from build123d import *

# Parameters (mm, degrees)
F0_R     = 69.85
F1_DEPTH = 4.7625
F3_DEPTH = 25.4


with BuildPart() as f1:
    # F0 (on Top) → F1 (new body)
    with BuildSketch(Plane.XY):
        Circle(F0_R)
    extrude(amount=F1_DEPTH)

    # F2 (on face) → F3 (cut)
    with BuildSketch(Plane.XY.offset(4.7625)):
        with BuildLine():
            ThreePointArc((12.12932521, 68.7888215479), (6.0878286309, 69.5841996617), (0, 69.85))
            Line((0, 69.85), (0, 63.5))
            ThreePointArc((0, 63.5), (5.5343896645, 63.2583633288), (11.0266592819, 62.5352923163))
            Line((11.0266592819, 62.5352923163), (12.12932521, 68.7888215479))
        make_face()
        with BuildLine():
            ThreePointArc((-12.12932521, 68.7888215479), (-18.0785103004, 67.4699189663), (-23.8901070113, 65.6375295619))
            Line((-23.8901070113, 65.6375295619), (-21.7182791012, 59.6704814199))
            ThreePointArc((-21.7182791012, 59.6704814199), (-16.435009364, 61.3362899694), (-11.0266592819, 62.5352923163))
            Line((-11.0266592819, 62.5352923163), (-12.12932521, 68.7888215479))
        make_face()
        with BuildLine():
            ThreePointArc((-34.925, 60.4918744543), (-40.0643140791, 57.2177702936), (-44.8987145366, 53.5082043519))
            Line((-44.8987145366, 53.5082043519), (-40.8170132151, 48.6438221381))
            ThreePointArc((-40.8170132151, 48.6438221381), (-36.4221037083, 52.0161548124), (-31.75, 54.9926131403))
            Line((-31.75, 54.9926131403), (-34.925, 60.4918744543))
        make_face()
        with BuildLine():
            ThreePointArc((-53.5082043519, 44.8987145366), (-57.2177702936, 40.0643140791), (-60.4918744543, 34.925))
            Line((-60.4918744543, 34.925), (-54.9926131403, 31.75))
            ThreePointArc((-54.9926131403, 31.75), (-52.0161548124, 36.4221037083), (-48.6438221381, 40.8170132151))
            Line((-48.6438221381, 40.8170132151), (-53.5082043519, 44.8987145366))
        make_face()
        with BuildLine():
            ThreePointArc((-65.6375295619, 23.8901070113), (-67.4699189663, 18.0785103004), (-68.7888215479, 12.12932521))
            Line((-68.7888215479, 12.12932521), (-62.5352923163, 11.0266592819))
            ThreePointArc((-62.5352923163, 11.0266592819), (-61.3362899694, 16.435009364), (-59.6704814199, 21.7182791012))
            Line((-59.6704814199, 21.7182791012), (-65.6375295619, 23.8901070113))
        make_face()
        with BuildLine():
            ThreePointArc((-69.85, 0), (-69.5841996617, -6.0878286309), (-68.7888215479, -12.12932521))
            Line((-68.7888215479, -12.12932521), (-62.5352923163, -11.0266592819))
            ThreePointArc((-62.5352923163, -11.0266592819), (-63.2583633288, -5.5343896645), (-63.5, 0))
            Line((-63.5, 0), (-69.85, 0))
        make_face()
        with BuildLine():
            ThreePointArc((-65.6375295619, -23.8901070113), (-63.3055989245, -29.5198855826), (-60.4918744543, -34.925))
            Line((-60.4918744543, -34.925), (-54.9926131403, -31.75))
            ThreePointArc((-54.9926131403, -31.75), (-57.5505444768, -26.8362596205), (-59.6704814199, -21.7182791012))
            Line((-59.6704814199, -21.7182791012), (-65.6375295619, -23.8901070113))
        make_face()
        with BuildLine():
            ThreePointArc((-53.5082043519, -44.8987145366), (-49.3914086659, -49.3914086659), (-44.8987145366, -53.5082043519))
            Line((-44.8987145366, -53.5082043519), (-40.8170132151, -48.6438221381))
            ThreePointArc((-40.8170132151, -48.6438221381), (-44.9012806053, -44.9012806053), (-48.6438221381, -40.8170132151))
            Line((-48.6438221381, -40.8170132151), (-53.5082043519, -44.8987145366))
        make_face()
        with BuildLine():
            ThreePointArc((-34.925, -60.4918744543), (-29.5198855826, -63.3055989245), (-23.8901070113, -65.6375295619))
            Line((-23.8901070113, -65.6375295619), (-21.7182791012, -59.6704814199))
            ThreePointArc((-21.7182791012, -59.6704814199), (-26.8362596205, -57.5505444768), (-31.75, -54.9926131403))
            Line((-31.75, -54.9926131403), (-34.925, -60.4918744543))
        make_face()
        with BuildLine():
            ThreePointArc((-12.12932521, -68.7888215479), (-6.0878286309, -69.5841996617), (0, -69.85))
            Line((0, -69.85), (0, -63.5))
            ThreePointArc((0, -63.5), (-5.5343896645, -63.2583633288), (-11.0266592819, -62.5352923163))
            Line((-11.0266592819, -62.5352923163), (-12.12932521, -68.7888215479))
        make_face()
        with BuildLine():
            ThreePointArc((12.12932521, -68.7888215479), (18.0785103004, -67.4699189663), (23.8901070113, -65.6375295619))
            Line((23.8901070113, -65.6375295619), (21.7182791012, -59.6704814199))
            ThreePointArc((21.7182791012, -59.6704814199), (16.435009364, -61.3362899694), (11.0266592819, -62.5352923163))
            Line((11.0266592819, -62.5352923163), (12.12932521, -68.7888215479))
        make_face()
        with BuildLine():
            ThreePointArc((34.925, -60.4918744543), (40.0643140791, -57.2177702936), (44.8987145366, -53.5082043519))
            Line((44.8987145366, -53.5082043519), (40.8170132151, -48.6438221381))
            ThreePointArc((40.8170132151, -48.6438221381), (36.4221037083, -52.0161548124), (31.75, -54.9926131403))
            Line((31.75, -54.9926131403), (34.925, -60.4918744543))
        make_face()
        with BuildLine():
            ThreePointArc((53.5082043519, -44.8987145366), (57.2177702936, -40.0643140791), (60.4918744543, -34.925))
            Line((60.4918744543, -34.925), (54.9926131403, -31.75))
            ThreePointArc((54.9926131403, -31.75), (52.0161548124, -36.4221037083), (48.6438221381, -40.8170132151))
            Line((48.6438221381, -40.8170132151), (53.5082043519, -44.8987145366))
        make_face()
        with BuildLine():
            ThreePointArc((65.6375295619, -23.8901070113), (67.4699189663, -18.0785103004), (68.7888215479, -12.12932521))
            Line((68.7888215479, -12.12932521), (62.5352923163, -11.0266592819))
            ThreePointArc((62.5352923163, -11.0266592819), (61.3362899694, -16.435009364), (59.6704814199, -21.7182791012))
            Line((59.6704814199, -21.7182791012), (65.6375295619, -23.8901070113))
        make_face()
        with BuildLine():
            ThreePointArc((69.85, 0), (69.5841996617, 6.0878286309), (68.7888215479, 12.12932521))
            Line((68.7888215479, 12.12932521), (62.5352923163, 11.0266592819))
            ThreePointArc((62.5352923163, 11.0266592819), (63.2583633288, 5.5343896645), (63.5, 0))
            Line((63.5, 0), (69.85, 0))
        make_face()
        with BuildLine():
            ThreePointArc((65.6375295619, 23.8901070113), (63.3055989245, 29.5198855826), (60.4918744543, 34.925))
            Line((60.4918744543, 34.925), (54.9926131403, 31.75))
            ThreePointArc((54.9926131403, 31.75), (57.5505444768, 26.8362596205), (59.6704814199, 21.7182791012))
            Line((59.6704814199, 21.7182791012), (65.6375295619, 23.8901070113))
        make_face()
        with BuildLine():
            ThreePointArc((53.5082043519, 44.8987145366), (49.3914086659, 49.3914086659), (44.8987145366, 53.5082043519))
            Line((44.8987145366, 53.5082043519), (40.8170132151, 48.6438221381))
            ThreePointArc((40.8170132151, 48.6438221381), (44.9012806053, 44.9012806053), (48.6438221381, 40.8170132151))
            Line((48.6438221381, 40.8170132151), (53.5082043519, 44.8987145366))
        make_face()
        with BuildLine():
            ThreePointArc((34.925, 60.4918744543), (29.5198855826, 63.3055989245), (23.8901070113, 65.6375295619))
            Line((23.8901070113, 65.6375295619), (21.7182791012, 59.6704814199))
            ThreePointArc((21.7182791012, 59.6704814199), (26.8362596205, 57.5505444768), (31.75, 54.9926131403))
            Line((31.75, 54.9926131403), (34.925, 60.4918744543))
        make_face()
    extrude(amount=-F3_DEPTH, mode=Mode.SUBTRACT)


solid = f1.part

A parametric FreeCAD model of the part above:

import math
import FreeCAD as App
import Part
import Sketcher
Q = App.Units.Quantity

doc = App.newDocument("Part")
body = doc.addObject("PartDesign::Body", "Body")

sketch1 = body.newObject("Sketcher::SketchObject", "Sketch")
sketch1.AttachmentSupport = (doc.getObject("XY_Plane"), [""])
sketch1.MapMode = "FlatFace"
sketch1.addGeometry(Part.Circle(App.Vector(0, 0, 0), App.Vector(0, 0, 1), 70), False)
sketch1.addConstraint([
    Sketcher.Constraint("Coincident", 0, 3, -1, 1),
    Sketcher.Constraint("Diameter", 0, Q("5.5 in")),
])
pad1 = body.newObject("PartDesign::Pad", "Pad")
pad1.Profile = sketch1
pad1.Length = Q("0.1875 in")

sketch2 = body.newObject("Sketcher::SketchObject", "Sketch001")
sketch2.AttachmentSupport = (doc.getObject("XY_Plane"), [""])
sketch2.MapMode = "FlatFace"
sketch2.AttachmentOffset = App.Placement(App.Vector(0, 0, 0.1875 * 25.4), App.Rotation())
sketch2.addGeometry([
    Part.ArcOfCircle(Part.Circle(App.Vector(0, 0, 0), App.Vector(0, 0, 1), 70), math.radians(80), math.radians(90)),
    Part.LineSegment(App.Vector(0, 70, 0), App.Vector(0, 64, 0)),
    Part.ArcOfCircle(Part.Circle(App.Vector(0, 0, 0), App.Vector(0, 0, 1), 64), math.radians(80), math.radians(90)),
    Part.LineSegment(App.Vector(11, 63, 0), App.Vector(12, 69, 0)),
    Part.ArcOfCircle(Part.Circle(App.Vector(0, 0, 0), App.Vector(0, 0, 1), 70), math.radians(100), math.radians(110)),
    Part.LineSegment(App.Vector(-24, 66, 0), App.Vector(-22, 60, 0)),
    Part.ArcOfCircle(Part.Circle(App.Vector(0, 0, 0), App.Vector(0, 0, 1), 63), math.radians(100), math.radians(110)),
    Part.LineSegment(App.Vector(-11, 63, 0), App.Vector(-12, 69, 0)),
    Part.ArcOfCircle(Part.Circle(App.Vector(0, 0, 0), App.Vector(0, 0, 1), 70), math.radians(120), math.radians(130)),
    Part.LineSegment(App.Vector(-45, 54, 0), App.Vector(-41, 49, 0)),
    Part.ArcOfCircle(Part.Circle(App.Vector(0, 0, 0), App.Vector(0, 0, 1), 63), math.radians(120), math.radians(130)),
    Part.LineSegment(App.Vector(-32, 55, 0), App.Vector(-35, 60, 0)),
    Part.ArcOfCircle(Part.Circle(App.Vector(0, 0, 0), App.Vector(0, 0, 1), 70), math.radians(140), math.radians(150)),
    Part.LineSegment(App.Vector(-60, 35, 0), App.Vector(-55, 32, 0)),
    Part.ArcOfCircle(Part.Circle(App.Vector(0, 0, 0), App.Vector(0, 0, 1), 63), math.radians(140), math.radians(150)),
    Part.LineSegment(App.Vector(-49, 41, 0), App.Vector(-54, 45, 0)),
    Part.ArcOfCircle(Part.Circle(App.Vector(0, 0, 0), App.Vector(0, 0, 1), 70), math.radians(160), math.radians(170)),
    Part.LineSegment(App.Vector(-69, 12, 0), App.Vector(-63, 11, 0)),
    Part.ArcOfCircle(Part.Circle(App.Vector(0, 0, 0), App.Vector(0, 0, 1), 63), math.radians(160), math.radians(170)),
    Part.LineSegment(App.Vector(-60, 22, 0), App.Vector(-66, 24, 0)),
    Part.ArcOfCircle(Part.Circle(App.Vector(0, 0, 0), App.Vector(0, 0, 1), 70), math.radians(180), math.radians(190)),
    Part.LineSegment(App.Vector(-69, -12, 0), App.Vector(-63, -11, 0)),
    Part.ArcOfCircle(Part.Circle(App.Vector(0, 0, 0), App.Vector(0, 0, 1), 64), math.radians(-180), math.radians(-170)),
    Part.LineSegment(App.Vector(-64, 0, 0), App.Vector(-70, 0, 0)),
    Part.ArcOfCircle(Part.Circle(App.Vector(0, 0, 0), App.Vector(0, 0, 1), 70), math.radians(-160), math.radians(-150)),
    Part.LineSegment(App.Vector(-60, -35, 0), App.Vector(-55, -32, 0)),
    Part.ArcOfCircle(Part.Circle(App.Vector(0, 0, 0), App.Vector(0, 0, 1), 64), math.radians(-160), math.radians(-150)),
    Part.LineSegment(App.Vector(-60, -22, 0), App.Vector(-66, -24, 0)),
    Part.ArcOfCircle(Part.Circle(App.Vector(0, 0, 0), App.Vector(0, 0, 1), 70), math.radians(-140), math.radians(-130)),
    Part.LineSegment(App.Vector(-45, -54, 0), App.Vector(-41, -49, 0)),
    Part.ArcOfCircle(Part.Circle(App.Vector(0, 0, 0), App.Vector(0, 0, 1), 64), math.radians(-140), math.radians(-130)),
    Part.LineSegment(App.Vector(-49, -41, 0), App.Vector(-54, -45, 0)),
    Part.ArcOfCircle(Part.Circle(App.Vector(0, 0, 0), App.Vector(0, 0, 1), 70), math.radians(-120), math.radians(-110)),
    Part.LineSegment(App.Vector(-24, -66, 0), App.Vector(-22, -60, 0)),
    Part.ArcOfCircle(Part.Circle(App.Vector(0, 0, 0), App.Vector(0, 0, 1), 64), math.radians(-120), math.radians(-110)),
    Part.LineSegment(App.Vector(-32, -55, 0), App.Vector(-35, -60, 0)),
    Part.ArcOfCircle(Part.Circle(App.Vector(0, 0, 0), App.Vector(0, 0, 1), 70), math.radians(-100), math.radians(-90)),
    Part.LineSegment(App.Vector(0, -70, 0), App.Vector(0, -64, 0)),
    Part.ArcOfCircle(Part.Circle(App.Vector(0, 0, 0), App.Vector(0, 0, 1), 64), math.radians(-100), math.radians(-90)),
    Part.LineSegment(App.Vector(-11, -63, 0), App.Vector(-12, -69, 0)),
    Part.ArcOfCircle(Part.Circle(App.Vector(0, 0, 0), App.Vector(0, 0, 1), 70), math.radians(-80), math.radians(-70)),
    Part.LineSegment(App.Vector(24, -66, 0), App.Vector(22, -60, 0)),
    Part.ArcOfCircle(Part.Circle(App.Vector(0, 0, 0), App.Vector(0, 0, 1), 63), math.radians(-80), math.radians(-70)),
    Part.LineSegment(App.Vector(11, -63, 0), App.Vector(12, -69, 0)),
    Part.ArcOfCircle(Part.Circle(App.Vector(0, 0, 0), App.Vector(0, 0, 1), 70), math.radians(-60), math.radians(-50)),
    Part.LineSegment(App.Vector(45, -54, 0), App.Vector(41, -49, 0)),
    Part.ArcOfCircle(Part.Circle(App.Vector(0, 0, 0), App.Vector(0, 0, 1), 63), math.radians(-60), math.radians(-50)),
    Part.LineSegment(App.Vector(32, -55, 0), App.Vector(35, -60, 0)),
    Part.ArcOfCircle(Part.Circle(App.Vector(0, 0, 0), App.Vector(0, 0, 1), 70), math.radians(-40), math.radians(-30)),
    Part.LineSegment(App.Vector(60, -35, 0), App.Vector(55, -32, 0)),
    Part.ArcOfCircle(Part.Circle(App.Vector(0, 0, 0), App.Vector(0, 0, 1), 63), math.radians(-40), math.radians(-30)),
    Part.LineSegment(App.Vector(49, -41, 0), App.Vector(54, -45, 0)),
    Part.ArcOfCircle(Part.Circle(App.Vector(0, 0, 0), App.Vector(0, 0, 1), 70), math.radians(-20), math.radians(-10)),
    Part.LineSegment(App.Vector(69, -12, 0), App.Vector(63, -11, 0)),
    Part.ArcOfCircle(Part.Circle(App.Vector(0, 0, 0), App.Vector(0, 0, 1), 63), math.radians(-20), math.radians(-10)),
    Part.LineSegment(App.Vector(60, -22, 0), App.Vector(66, -24, 0)),
    Part.ArcOfCircle(Part.Circle(App.Vector(0, 0, 0), App.Vector(0, 0, 1), 70), math.radians(0), math.radians(10)),
    Part.LineSegment(App.Vector(69, 12, 0), App.Vector(63, 11, 0)),
    Part.ArcOfCircle(Part.Circle(App.Vector(0, 0, 0), App.Vector(0, 0, 1), 64), math.radians(0), math.radians(10)),
    Part.LineSegment(App.Vector(64, 0, 0), App.Vector(70, 0, 0)),
    Part.ArcOfCircle(Part.Circle(App.Vector(0, 0, 0), App.Vector(0, 0, 1), 70), math.radians(20), math.radians(30)),
    Part.LineSegment(App.Vector(60, 35, 0), App.Vector(55, 32, 0)),
    Part.ArcOfCircle(Part.Circle(App.Vector(0, 0, 0), App.Vector(0, 0, 1), 64), math.radians(20), math.radians(30)),
    Part.LineSegment(App.Vector(60, 22, 0), App.Vector(66, 24, 0)),
    Part.ArcOfCircle(Part.Circle(App.Vector(0, 0, 0), App.Vector(0, 0, 1), 70), math.radians(40), math.radians(50)),
    Part.LineSegment(App.Vector(45, 54, 0), App.Vector(41, 49, 0)),
    Part.ArcOfCircle(Part.Circle(App.Vector(0, 0, 0), App.Vector(0, 0, 1), 64), math.radians(40), math.radians(50)),
    Part.LineSegment(App.Vector(49, 41, 0), App.Vector(54, 45, 0)),
    Part.ArcOfCircle(Part.Circle(App.Vector(0, 0, 0), App.Vector(0, 0, 1), 70), math.radians(60), math.radians(70)),
    Part.LineSegment(App.Vector(24, 66, 0), App.Vector(22, 60, 0)),
    Part.ArcOfCircle(Part.Circle(App.Vector(0, 0, 0), App.Vector(0, 0, 1), 64), math.radians(60), math.radians(70)),
    Part.LineSegment(App.Vector(32, 55, 0), App.Vector(35, 60, 0)),
], False)
sketch2.addConstraint([
    Sketcher.Constraint("Coincident", 0, 2, 1, 1),
    Sketcher.Constraint("Coincident", 1, 2, 2, 2),
    Sketcher.Constraint("Coincident", 2, 1, 3, 1),
    Sketcher.Constraint("Coincident", 3, 2, 0, 1),
    Sketcher.Constraint("Coincident", 4, 2, 5, 1),
    Sketcher.Constraint("Coincident", 5, 2, 6, 2),
    Sketcher.Constraint("Coincident", 6, 1, 7, 1),
    Sketcher.Constraint("Coincident", 7, 2, 4, 1),
    Sketcher.Constraint("Coincident", 8, 2, 9, 1),
    Sketcher.Constraint("Coincident", 9, 2, 10, 2),
    Sketcher.Constraint("Coincident", 10, 1, 11, 1),
    Sketcher.Constraint("Coincident", 11, 2, 8, 1),
    Sketcher.Constraint("Coincident", 12, 2, 13, 1),
    Sketcher.Constraint("Coincident", 13, 2, 14, 2),
    Sketcher.Constraint("Coincident", 14, 1, 15, 1),
    Sketcher.Constraint("Coincident", 15, 2, 12, 1),
    Sketcher.Constraint("Coincident", 16, 2, 17, 1),
    Sketcher.Constraint("Coincident", 17, 2, 18, 2),
    Sketcher.Constraint("Coincident", 18, 1, 19, 1),
    Sketcher.Constraint("Coincident", 19, 2, 16, 1),
    Sketcher.Constraint("Coincident", 20, 2, 21, 1),
    Sketcher.Constraint("Coincident", 21, 2, 22, 2),
    Sketcher.Constraint("Coincident", 22, 1, 23, 1),
    Sketcher.Constraint("Coincident", 23, 2, 20, 1),
    Sketcher.Constraint("Coincident", 24, 2, 25, 1),
    Sketcher.Constraint("Coincident", 25, 2, 26, 2),
    Sketcher.Constraint("Coincident", 26, 1, 27, 1),
    Sketcher.Constraint("Coincident", 27, 2, 24, 1),
    Sketcher.Constraint("Coincident", 28, 2, 29, 1),
    Sketcher.Constraint("Coincident", 29, 2, 30, 2),
    Sketcher.Constraint("Coincident", 30, 1, 31, 1),
    Sketcher.Constraint("Coincident", 31, 2, 28, 1),
    Sketcher.Constraint("Coincident", 32, 2, 33, 1),
    Sketcher.Constraint("Coincident", 33, 2, 34, 2),
    Sketcher.Constraint("Coincident", 34, 1, 35, 1),
    Sketcher.Constraint("Coincident", 35, 2, 32, 1),
    Sketcher.Constraint("Coincident", 36, 2, 37, 1),
    Sketcher.Constraint("Coincident", 37, 2, 38, 2),
    Sketcher.Constraint("Coincident", 38, 1, 39, 1),
    Sketcher.Constraint("Coincident", 39, 2, 36, 1),
    Sketcher.Constraint("Coincident", 40, 2, 41, 1),
    Sketcher.Constraint("Coincident", 41, 2, 42, 2),
    Sketcher.Constraint("Coincident", 42, 1, 43, 1),
    Sketcher.Constraint("Coincident", 43, 2, 40, 1),
    Sketcher.Constraint("Coincident", 44, 2, 45, 1),
    Sketcher.Constraint("Coincident", 45, 2, 46, 2),
    Sketcher.Constraint("Coincident", 46, 1, 47, 1),
    Sketcher.Constraint("Coincident", 47, 2, 44, 1),
    Sketcher.Constraint("Coincident", 48, 2, 49, 1),
    Sketcher.Constraint("Coincident", 49, 2, 50, 2),
    Sketcher.Constraint("Coincident", 50, 1, 51, 1),
    Sketcher.Constraint("Coincident", 51, 2, 48, 1),
    Sketcher.Constraint("Coincident", 52, 2, 53, 1),
    Sketcher.Constraint("Coincident", 53, 2, 54, 2),
    Sketcher.Constraint("Coincident", 54, 1, 55, 1),
    Sketcher.Constraint("Coincident", 55, 2, 52, 1),
    Sketcher.Constraint("Coincident", 56, 2, 57, 1),
    Sketcher.Constraint("Coincident", 57, 2, 58, 2),
    Sketcher.Constraint("Coincident", 58, 1, 59, 1),
    Sketcher.Constraint("Coincident", 59, 2, 56, 1),
    Sketcher.Constraint("Coincident", 60, 2, 61, 1),
    Sketcher.Constraint("Coincident", 61, 2, 62, 2),
    Sketcher.Constraint("Coincident", 62, 1, 63, 1),
    Sketcher.Constraint("Coincident", 63, 2, 60, 1),
    Sketcher.Constraint("Coincident", 64, 2, 65, 1),
    Sketcher.Constraint("Coincident", 65, 2, 66, 2),
    Sketcher.Constraint("Coincident", 66, 1, 67, 1),
    Sketcher.Constraint("Coincident", 67, 2, 64, 1),
    Sketcher.Constraint("Coincident", 68, 2, 69, 1),
    Sketcher.Constraint("Coincident", 69, 2, 70, 2),
    Sketcher.Constraint("Coincident", 70, 1, 71, 1),
    Sketcher.Constraint("Coincident", 71, 2, 68, 1),
    Sketcher.Constraint("Vertical", 1),
    Sketcher.Constraint("Horizontal", 23),
    Sketcher.Constraint("Vertical", 37),
    Sketcher.Constraint("Horizontal", 59),
    Sketcher.Constraint("Coincident", 0, 3, -1, 1),
    Sketcher.Constraint("Coincident", 2, 3, -1, 1),
    Sketcher.Constraint("Coincident", 4, 3, -1, 1),
    Sketcher.Constraint("Coincident", 6, 3, -1, 1),
    Sketcher.Constraint("Coincident", 8, 3, -1, 1),
    Sketcher.Constraint("Coincident", 10, 3, -1, 1),
    Sketcher.Constraint("Coincident", 12, 3, -1, 1),
    Sketcher.Constraint("Coincident", 14, 3, -1, 1),
    Sketcher.Constraint("Coincident", 16, 3, -1, 1),
    Sketcher.Constraint("Coincident", 18, 3, -1, 1),
    Sketcher.Constraint("Coincident", 20, 3, -1, 1),
    Sketcher.Constraint("Coincident", 22, 3, -1, 1),
    Sketcher.Constraint("Coincident", 24, 3, -1, 1),
    Sketcher.Constraint("Coincident", 26, 3, -1, 1),
    Sketcher.Constraint("Coincident", 28, 3, -1, 1),
    Sketcher.Constraint("Coincident", 30, 3, -1, 1),
    Sketcher.Constraint("Coincident", 32, 3, -1, 1),
    Sketcher.Constraint("Coincident", 34, 3, -1, 1),
    Sketcher.Constraint("Coincident", 36, 3, -1, 1),
    Sketcher.Constraint("Coincident", 38, 3, -1, 1),
    Sketcher.Constraint("Coincident", 40, 3, -1, 1),
    Sketcher.Constraint("Coincident", 42, 3, -1, 1),
    Sketcher.Constraint("Coincident", 44, 3, -1, 1),
    Sketcher.Constraint("Coincident", 46, 3, -1, 1),
    Sketcher.Constraint("Coincident", 48, 3, -1, 1),
    Sketcher.Constraint("Coincident", 50, 3, -1, 1),
    Sketcher.Constraint("Coincident", 52, 3, -1, 1),
    Sketcher.Constraint("Coincident", 54, 3, -1, 1),
    Sketcher.Constraint("Coincident", 56, 3, -1, 1),
    Sketcher.Constraint("Coincident", 58, 3, -1, 1),
    Sketcher.Constraint("Coincident", 60, 3, -1, 1),
    Sketcher.Constraint("Coincident", 62, 3, -1, 1),
    Sketcher.Constraint("Coincident", 64, 3, -1, 1),
    Sketcher.Constraint("Coincident", 66, 3, -1, 1),
    Sketcher.Constraint("Coincident", 68, 3, -1, 1),
    Sketcher.Constraint("Coincident", 70, 3, -1, 1),
    Sketcher.Constraint("Equal", 0, 4),
    Sketcher.Constraint("Equal", 2, 6),
    Sketcher.Constraint("Equal", 4, 8),
    Sketcher.Constraint("Equal", 6, 10),
    Sketcher.Constraint("Equal", 8, 12),
    Sketcher.Constraint("Equal", 10, 14),
    Sketcher.Constraint("Equal", 12, 16),
    Sketcher.Constraint("Equal", 14, 18),
    Sketcher.Constraint("Equal", 16, 20),
    Sketcher.Constraint("Equal", 18, 22),
    Sketcher.Constraint("Equal", 20, 24),
    Sketcher.Constraint("Equal", 22, 26),
    Sketcher.Constraint("Equal", 24, 28),
    Sketcher.Constraint("Equal", 26, 30),
    Sketcher.Constraint("Equal", 28, 32),
    Sketcher.Constraint("Equal", 30, 34),
    Sketcher.Constraint("Equal", 32, 36),
    Sketcher.Constraint("Equal", 34, 38),
    Sketcher.Constraint("Equal", 36, 40),
    Sketcher.Constraint("Equal", 38, 42),
    Sketcher.Constraint("Equal", 40, 44),
    Sketcher.Constraint("Equal", 42, 46),
    Sketcher.Constraint("Equal", 44, 48),
    Sketcher.Constraint("Equal", 46, 50),
    Sketcher.Constraint("Equal", 48, 52),
    Sketcher.Constraint("Equal", 50, 54),
    Sketcher.Constraint("Equal", 52, 56),
    Sketcher.Constraint("Equal", 54, 58),
    Sketcher.Constraint("Equal", 56, 60),
    Sketcher.Constraint("Equal", 58, 62),
    Sketcher.Constraint("Equal", 60, 64),
    Sketcher.Constraint("Equal", 62, 66),
    Sketcher.Constraint("Equal", 64, 68),
    Sketcher.Constraint("Equal", 66, 70),
    Sketcher.Constraint("PointOnObject", 0, 2, -2),
    Sketcher.Constraint("PointOnObject", 22, 1, -1),
    Sketcher.Constraint("PointOnObject", 36, 2, -2),
    Sketcher.Constraint("PointOnObject", 58, 1, -1),
    Sketcher.Constraint("Perpendicular", 3, 17),
    Sketcher.Constraint("Perpendicular", 7, 21),
    Sketcher.Constraint("Perpendicular", 11, 25),
    Sketcher.Constraint("Perpendicular", 5, 27),
    Sketcher.Constraint("Perpendicular", 15, 29),
    Sketcher.Constraint("Perpendicular", 9, 31),
    Sketcher.Constraint("Perpendicular", 19, 33),
    Sketcher.Constraint("Perpendicular", 13, 35),
    Sketcher.Constraint("Perpendicular", 17, 39),
    Sketcher.Constraint("Perpendicular", 27, 41),
    Sketcher.Constraint("Perpendicular", 21, 43),
    Sketcher.Constraint("Perpendicular", 31, 45),
    Sketcher.Constraint("Perpendicular", 25, 47),
    Sketcher.Constraint("Perpendicular", 35, 49),
    Sketcher.Constraint("Perpendicular", 29, 51),
    Sketcher.Constraint("Perpendicular", 39, 53),
    Sketcher.Constraint("Perpendicular", 33, 55),
    Sketcher.Constraint("Perpendicular", 43, 57),
    Sketcher.Constraint("Perpendicular", 47, 61),
    Sketcher.Constraint("Perpendicular", 41, 63),
    Sketcher.Constraint("Perpendicular", 51, 65),
    Sketcher.Constraint("Perpendicular", 45, 67),
    Sketcher.Constraint("Perpendicular", 55, 69),
    Sketcher.Constraint("Perpendicular", 49, 71),
    Sketcher.Constraint("Horizontal", 2, 1, 6, 1),
    Sketcher.Constraint("Horizontal", 3, 2, 7, 2),
    Sketcher.Constraint("Horizontal", 32, 2, 40, 2),
    Sketcher.Constraint("Horizontal", 33, 2, 41, 2),
    Sketcher.Constraint("Horizontal", 38, 1, 42, 1),
    Sketcher.Constraint("Horizontal", 28, 2, 44, 2),
    Sketcher.Constraint("Horizontal", 29, 2, 45, 2),
    Sketcher.Constraint("Horizontal", 34, 1, 46, 1),
    Sketcher.Constraint("Horizontal", 35, 2, 47, 2),
    Sketcher.Constraint("Horizontal", 24, 2, 48, 2),
    Sketcher.Constraint("Horizontal", 30, 1, 50, 1),
    Sketcher.Constraint("Horizontal", 20, 2, 52, 2),
    Sketcher.Constraint("Horizontal", 26, 1, 54, 1),
    Sketcher.Constraint("Horizontal", 16, 2, 56, 2),
    Sketcher.Constraint("Horizontal", 12, 2, 60, 2),
    Sketcher.Constraint("Horizontal", 18, 1, 62, 1),
    Sketcher.Constraint("Horizontal", 8, 2, 64, 2),
    Sketcher.Constraint("Horizontal", 14, 1, 66, 1),
    Sketcher.Constraint("Horizontal", 4, 2, 68, 2),
    Sketcher.Constraint("Horizontal", 10, 1, 70, 1),
    Sketcher.Constraint("Vertical", 16, 2, 20, 2),
    Sketcher.Constraint("Vertical", 12, 2, 24, 2),
    Sketcher.Constraint("Vertical", 18, 1, 26, 1),
    Sketcher.Constraint("Vertical", 8, 2, 28, 2),
    Sketcher.Constraint("Vertical", 14, 1, 30, 1),
    Sketcher.Constraint("Vertical", 4, 2, 32, 2),
    Sketcher.Constraint("Vertical", 10, 1, 34, 1),
    Sketcher.Constraint("Vertical", 6, 1, 38, 1),
    Sketcher.Constraint("Radius", 2, Q("2.5 in")),
    Sketcher.Constraint("Radius", 0, Q("2.75 in")),
    Sketcher.Constraint("Angle", 3, Q("80 deg")),
    Sketcher.Constraint("Angle", 5, Q("-70 deg")),
    Sketcher.Constraint("Angle", 9, Q("-50 deg")),
    Sketcher.Constraint("Angle", 11, Q("120 deg")),
    Sketcher.Constraint("DistanceX", 10, 1, -1, 1, Q("1.25 in")),
    Sketcher.Constraint("DistanceY", -1, 1, 13, 2, Q("1.25 in")),
    Sketcher.Constraint("DistanceX", -1, 1, 2, 1, Q("11.026659 mm")),
    Sketcher.Constraint("DistanceY", -1, 1, 4, 2, Q("65.63753 mm")),
    Sketcher.Constraint("DistanceX", 16, 2, -1, 1, Q("68.788822 mm")),
    Sketcher.Constraint("DistanceX", 18, 1, -1, 1, Q("59.670481 mm")),
    Sketcher.Constraint("DistanceX", 8, 2, -1, 1, Q("44.898715 mm")),
    Sketcher.Constraint("DistanceX", 14, 1, -1, 1, Q("48.643822 mm")),
])
pocket1 = body.newObject("PartDesign::Pocket", "Pocket")
pocket1.Profile = sketch2
pocket1.Length = Q("1 in")

doc.recompute()
